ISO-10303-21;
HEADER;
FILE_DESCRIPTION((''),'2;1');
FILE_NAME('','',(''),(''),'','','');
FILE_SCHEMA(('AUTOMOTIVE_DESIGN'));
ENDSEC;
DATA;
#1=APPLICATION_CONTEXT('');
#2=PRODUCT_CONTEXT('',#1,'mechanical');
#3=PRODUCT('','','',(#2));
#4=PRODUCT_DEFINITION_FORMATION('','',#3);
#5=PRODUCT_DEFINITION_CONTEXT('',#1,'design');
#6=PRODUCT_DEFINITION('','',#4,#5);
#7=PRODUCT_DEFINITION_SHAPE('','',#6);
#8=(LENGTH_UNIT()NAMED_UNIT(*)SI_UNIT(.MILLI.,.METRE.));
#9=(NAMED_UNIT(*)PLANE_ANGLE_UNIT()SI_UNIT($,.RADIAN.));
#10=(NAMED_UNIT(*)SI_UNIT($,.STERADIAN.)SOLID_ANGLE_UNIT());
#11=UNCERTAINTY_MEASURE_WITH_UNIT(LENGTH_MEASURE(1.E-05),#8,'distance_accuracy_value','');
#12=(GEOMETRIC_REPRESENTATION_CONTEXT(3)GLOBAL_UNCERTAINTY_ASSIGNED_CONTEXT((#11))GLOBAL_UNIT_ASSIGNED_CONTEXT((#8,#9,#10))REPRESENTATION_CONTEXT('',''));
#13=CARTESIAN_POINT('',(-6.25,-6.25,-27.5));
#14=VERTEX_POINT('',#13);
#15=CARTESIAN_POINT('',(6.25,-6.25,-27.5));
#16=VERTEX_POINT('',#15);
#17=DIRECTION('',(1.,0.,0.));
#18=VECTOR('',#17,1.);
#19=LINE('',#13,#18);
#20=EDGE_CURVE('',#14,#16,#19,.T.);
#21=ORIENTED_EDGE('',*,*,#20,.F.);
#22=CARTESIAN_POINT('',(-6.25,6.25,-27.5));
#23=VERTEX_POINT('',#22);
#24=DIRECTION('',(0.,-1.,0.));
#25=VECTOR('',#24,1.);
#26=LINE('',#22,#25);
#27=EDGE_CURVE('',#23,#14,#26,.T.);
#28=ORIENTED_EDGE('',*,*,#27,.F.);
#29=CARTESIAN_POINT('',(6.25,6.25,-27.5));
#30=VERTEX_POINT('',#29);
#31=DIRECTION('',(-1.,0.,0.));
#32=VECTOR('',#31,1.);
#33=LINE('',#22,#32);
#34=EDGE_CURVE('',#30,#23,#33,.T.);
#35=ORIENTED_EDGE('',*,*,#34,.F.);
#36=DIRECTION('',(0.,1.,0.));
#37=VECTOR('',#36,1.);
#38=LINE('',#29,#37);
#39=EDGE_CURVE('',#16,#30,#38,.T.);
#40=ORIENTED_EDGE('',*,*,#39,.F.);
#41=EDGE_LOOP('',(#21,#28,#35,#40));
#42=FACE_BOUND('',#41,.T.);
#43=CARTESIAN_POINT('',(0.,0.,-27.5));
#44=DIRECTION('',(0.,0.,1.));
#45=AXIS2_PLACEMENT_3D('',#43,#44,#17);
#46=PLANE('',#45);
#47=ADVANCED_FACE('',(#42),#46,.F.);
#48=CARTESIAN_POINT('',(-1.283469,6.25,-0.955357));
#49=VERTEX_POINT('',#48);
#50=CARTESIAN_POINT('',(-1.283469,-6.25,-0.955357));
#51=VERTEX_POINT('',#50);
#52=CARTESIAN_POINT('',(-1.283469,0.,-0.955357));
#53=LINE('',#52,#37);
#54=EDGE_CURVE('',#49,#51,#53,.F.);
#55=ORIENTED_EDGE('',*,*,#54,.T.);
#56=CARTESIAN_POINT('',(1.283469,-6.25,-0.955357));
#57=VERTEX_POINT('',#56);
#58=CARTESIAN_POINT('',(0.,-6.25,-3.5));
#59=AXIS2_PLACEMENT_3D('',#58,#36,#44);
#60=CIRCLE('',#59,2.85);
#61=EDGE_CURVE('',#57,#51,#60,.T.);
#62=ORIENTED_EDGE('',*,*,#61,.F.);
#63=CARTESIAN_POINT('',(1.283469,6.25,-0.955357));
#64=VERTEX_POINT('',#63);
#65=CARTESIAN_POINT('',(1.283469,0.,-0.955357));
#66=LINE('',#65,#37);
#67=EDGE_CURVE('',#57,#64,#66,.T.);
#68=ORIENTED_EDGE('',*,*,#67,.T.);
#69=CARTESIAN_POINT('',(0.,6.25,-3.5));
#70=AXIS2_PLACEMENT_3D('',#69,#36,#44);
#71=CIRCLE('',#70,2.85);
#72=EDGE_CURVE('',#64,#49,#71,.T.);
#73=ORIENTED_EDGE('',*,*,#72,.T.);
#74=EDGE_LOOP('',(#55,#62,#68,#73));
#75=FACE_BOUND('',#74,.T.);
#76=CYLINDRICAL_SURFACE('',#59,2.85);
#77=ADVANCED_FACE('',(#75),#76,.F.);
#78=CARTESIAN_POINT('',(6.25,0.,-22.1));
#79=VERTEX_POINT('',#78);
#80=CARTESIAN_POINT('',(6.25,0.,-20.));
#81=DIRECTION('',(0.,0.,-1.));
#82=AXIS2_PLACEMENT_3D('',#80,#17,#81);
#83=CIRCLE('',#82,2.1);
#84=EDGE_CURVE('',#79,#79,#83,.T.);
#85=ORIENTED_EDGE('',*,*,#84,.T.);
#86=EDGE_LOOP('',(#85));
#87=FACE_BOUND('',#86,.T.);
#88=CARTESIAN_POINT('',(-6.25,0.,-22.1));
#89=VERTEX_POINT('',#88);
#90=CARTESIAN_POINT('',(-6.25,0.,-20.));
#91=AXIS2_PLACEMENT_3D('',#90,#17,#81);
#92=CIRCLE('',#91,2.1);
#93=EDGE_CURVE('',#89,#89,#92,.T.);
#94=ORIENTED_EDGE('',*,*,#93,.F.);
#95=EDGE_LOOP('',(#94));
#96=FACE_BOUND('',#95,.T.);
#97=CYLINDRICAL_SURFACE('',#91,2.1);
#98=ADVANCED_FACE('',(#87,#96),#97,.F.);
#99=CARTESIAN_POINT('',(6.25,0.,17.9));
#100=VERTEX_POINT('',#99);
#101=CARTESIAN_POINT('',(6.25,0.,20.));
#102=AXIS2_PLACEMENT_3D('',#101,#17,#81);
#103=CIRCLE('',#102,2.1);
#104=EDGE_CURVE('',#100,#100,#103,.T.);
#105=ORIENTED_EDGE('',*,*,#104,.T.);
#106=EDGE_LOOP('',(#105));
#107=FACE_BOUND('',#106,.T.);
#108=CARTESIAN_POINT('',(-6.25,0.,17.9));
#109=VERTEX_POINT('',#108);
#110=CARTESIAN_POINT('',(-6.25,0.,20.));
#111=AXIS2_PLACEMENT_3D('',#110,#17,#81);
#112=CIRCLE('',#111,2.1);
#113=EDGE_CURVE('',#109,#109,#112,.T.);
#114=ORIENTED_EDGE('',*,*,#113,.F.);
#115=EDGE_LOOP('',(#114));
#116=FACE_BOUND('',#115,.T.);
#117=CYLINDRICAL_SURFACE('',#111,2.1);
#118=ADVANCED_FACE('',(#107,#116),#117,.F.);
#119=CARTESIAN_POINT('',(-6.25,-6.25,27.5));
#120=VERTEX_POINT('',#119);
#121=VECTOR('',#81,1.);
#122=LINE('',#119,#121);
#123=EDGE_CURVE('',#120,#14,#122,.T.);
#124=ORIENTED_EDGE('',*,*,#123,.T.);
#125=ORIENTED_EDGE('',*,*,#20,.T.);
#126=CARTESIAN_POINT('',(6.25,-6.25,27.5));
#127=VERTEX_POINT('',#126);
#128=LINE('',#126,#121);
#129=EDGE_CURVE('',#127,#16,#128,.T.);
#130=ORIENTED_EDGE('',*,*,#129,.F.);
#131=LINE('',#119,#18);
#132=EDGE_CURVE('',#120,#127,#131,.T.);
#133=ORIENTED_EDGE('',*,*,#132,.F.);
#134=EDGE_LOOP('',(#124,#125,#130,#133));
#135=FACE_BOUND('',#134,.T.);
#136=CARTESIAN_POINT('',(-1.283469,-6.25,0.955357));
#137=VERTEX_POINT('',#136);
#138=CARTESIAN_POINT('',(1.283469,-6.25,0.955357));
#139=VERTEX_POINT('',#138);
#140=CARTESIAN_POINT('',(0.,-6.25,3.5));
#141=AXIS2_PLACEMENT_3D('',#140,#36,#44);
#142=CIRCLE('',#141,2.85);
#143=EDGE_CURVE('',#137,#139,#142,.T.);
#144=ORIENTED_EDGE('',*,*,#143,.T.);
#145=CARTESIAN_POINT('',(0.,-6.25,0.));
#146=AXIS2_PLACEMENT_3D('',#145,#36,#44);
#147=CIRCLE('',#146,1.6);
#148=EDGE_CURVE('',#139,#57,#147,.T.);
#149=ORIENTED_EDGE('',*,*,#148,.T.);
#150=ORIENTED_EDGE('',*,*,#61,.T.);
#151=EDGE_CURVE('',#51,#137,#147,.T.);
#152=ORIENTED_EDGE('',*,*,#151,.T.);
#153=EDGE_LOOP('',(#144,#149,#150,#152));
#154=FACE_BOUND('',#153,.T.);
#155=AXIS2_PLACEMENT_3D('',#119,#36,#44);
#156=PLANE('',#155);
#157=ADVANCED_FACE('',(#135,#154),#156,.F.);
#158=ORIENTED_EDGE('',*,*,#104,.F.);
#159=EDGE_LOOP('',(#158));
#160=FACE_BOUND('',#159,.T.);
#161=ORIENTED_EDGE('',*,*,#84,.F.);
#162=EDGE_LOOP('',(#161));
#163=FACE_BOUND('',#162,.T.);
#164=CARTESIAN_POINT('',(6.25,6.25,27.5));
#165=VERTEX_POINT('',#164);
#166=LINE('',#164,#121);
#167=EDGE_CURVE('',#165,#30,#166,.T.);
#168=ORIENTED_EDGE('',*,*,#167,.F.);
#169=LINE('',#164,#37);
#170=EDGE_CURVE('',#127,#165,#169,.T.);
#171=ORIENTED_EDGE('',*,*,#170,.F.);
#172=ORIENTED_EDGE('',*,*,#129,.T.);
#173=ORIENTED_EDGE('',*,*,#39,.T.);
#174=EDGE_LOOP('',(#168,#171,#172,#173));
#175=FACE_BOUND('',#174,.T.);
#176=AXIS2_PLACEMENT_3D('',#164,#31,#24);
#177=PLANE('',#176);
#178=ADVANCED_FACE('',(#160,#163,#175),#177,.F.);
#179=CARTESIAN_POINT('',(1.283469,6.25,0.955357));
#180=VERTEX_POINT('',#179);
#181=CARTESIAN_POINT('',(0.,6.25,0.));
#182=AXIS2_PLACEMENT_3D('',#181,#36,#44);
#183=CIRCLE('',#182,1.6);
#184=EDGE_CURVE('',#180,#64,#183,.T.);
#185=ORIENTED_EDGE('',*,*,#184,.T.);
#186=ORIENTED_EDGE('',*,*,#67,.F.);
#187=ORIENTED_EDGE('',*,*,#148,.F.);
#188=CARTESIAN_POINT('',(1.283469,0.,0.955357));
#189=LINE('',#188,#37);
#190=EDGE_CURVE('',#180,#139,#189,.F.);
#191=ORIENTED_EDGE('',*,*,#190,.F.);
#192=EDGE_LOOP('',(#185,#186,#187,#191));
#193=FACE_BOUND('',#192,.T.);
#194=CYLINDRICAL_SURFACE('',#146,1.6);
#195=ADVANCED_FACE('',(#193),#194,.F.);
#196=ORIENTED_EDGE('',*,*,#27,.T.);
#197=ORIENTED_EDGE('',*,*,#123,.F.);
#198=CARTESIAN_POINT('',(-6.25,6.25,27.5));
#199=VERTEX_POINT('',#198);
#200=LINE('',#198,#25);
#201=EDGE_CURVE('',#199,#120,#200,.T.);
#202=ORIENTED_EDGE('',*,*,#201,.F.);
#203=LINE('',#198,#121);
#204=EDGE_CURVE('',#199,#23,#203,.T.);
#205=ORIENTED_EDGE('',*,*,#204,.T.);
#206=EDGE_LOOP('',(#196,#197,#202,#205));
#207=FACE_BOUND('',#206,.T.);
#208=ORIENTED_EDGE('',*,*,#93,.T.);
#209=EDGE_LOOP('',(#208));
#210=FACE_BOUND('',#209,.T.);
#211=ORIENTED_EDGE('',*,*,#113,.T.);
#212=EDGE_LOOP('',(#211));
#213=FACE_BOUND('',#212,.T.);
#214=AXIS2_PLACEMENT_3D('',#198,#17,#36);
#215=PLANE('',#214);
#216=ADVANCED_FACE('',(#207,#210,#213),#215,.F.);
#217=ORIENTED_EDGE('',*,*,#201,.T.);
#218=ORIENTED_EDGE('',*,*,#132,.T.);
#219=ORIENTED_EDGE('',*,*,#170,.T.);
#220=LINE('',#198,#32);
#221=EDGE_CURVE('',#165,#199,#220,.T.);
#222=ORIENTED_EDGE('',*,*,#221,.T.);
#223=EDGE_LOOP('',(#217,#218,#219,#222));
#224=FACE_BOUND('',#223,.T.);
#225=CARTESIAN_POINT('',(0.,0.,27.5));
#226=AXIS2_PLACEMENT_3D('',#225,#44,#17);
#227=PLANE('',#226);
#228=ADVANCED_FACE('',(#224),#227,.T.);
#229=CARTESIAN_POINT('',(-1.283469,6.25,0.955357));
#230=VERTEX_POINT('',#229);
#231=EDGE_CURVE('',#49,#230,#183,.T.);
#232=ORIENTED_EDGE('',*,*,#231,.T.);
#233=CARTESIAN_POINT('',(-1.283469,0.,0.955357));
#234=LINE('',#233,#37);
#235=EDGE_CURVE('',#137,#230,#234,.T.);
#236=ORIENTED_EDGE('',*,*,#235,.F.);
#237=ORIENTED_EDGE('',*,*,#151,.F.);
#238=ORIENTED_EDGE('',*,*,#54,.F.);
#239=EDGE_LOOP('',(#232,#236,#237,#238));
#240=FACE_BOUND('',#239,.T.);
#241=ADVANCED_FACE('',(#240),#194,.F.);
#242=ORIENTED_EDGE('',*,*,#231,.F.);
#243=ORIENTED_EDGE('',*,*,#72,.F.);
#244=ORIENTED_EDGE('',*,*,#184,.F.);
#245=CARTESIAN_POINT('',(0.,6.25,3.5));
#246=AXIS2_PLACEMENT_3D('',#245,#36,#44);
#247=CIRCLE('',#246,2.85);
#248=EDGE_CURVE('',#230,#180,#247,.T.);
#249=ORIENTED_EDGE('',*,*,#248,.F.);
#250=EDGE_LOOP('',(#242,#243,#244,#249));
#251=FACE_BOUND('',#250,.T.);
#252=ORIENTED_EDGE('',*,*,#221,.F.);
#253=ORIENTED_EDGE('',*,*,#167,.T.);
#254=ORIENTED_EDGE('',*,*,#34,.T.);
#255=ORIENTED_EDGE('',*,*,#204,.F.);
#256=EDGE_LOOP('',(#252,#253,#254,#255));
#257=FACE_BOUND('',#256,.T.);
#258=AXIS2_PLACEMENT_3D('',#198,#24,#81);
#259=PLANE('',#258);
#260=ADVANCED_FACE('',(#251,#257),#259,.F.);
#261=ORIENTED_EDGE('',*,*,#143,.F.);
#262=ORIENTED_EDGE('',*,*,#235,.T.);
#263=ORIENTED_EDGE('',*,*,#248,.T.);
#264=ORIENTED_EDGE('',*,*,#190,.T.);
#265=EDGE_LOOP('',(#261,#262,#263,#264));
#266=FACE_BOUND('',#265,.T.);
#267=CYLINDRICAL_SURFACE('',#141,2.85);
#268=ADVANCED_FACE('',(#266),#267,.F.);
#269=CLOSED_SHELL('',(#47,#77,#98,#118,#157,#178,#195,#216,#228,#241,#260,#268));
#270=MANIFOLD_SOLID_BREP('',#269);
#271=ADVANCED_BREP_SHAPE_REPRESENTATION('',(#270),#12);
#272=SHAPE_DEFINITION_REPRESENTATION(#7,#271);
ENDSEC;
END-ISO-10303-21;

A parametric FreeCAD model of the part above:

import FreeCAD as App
import Part
import Sketcher
from FreeCAD import Vector
Q = App.Units.Quantity

doc = App.newDocument("Part")
body = doc.addObject("PartDesign::Body", "Body")

# Sketch on XY plane
sketch1 = doc.addObject("Sketcher::SketchObject", "Sketch")
body.addObject(sketch1)
sketch1.AttachmentSupport = (doc.XY_Plane, [""])
sketch1.MapMode = "FlatFace"
sketch1.addGeometry([
    Part.LineSegment(Vector(-6, 6, 0), Vector(-6, -6, 0)),
    Part.LineSegment(Vector(-6, -6, 0), Vector(6, -6, 0)),
    Part.LineSegment(Vector(6, -6, 0), Vector(6, 6, 0)),
    Part.LineSegment(Vector(6, 6, 0), Vector(-6, 6, 0)),
], False)
sketch1.addConstraint([
    Sketcher.Constraint("Coincident", 0, 2, 1, 1),
    Sketcher.Constraint("Coincident", 1, 2, 2, 1),
    Sketcher.Constraint("Coincident", 2, 2, 3, 1),
    Sketcher.Constraint("Coincident", 3, 2, 0, 1),
    Sketcher.Constraint("Vertical", 0),
    Sketcher.Constraint("Horizontal", 1),
    Sketcher.Constraint("Vertical", 2),
    Sketcher.Constraint("Horizontal", 3),
    Sketcher.Constraint("Symmetric", 0, 2, 2, 2, -1, 1),
    Sketcher.Constraint("Equal", 3, 0),
    Sketcher.Constraint("DistanceX", 1, 1, 1, 2, Q("12.5 mm")),
])
pad1 = doc.addObject("PartDesign::Pad", "Pad")
body.addObject(pad1)
pad1.Profile = sketch1
pad1.Length = 55
pad1.Midplane = True

# Sketch on XZ plane
sketch2 = doc.addObject("Sketcher::SketchObject", "Sketch001")
body.addObject(sketch2)
sketch2.AttachmentSupport = (doc.XZ_Plane, [""])
sketch2.MapMode = "FlatFace"
sketch2.addGeometry([
    Part.Circle(Vector(0, -3.5, 0), Vector(0, 0, 1), 2.9),
    Part.Circle(Vector(0, 3.5, 0), Vector(0, 0, 1), 2.9),
], False)
sketch2.addConstraint([
    Sketcher.Constraint("Equal", 0, 1),
    Sketcher.Constraint("Symmetric", 0, 3, 1, 3, -1, 1),
    Sketcher.Constraint("PointOnObject", 0, 3, -2),
    Sketcher.Constraint("Diameter", 0, Q("5.7 mm")),
    Sketcher.Constraint("DistanceY", 0, 3, 1, 3, Q("7 mm")),
])
pocket1 = doc.addObject("PartDesign::Pocket", "Pocket")
body.addObject(pocket1)
pocket1.Profile = sketch2
pocket1.Type = "ThroughAll"
pocket1.Midplane = True

# Sketch on XZ plane
sketch3 = doc.addObject("Sketcher::SketchObject", "Sketch002")
body.addObject(sketch3)
sketch3.AttachmentSupport = (doc.XZ_Plane, [""])
sketch3.MapMode = "FlatFace"
sketch3.addGeometry(Part.Circle(Vector(0, 0, 0), Vector(0, 0, 1), 1.6), False)
sketch3.addConstraint([
    Sketcher.Constraint("Coincident", 0, 3, -1, 1),
    Sketcher.Constraint("Diameter", 0, Q("3.2 mm")),
])
pocket2 = doc.addObject("PartDesign::Pocket", "Pocket001")
body.addObject(pocket2)
pocket2.Profile = sketch3
pocket2.Type = "ThroughAll"
pocket2.Midplane = True

# Sketch on YZ plane
sketch4 = doc.addObject("Sketcher::SketchObject", "Sketch003")
body.addObject(sketch4)
sketch4.AttachmentSupport = (doc.YZ_Plane, [""])
sketch4.MapMode = "FlatFace"
sketch4.addGeometry([
    Part.Circle(Vector(0, 20, 0), Vector(0, 0, 1), 2.1),
    Part.Circle(Vector(0, -20, 0), Vector(0, 0, 1), 2.1),
], False)
sketch4.addConstraint([
    Sketcher.Constraint("Equal", 0, 1),
    Sketcher.Constraint("Symmetric", 0, 3, 1, 3, -1, 1),
    Sketcher.Constraint("PointOnObject", 0, 3, -2),
    Sketcher.Constraint("Diameter", 0, Q("4.2 mm")),
    Sketcher.Constraint("DistanceY", -1, 1, 0, 3, Q("20 mm")),
])
pocket3 = doc.addObject("PartDesign::Pocket", "Pocket002")
body.addObject(pocket3)
pocket3.Profile = sketch4
pocket3.Type = "ThroughAll"
pocket3.Midplane = True

doc.recompute()
